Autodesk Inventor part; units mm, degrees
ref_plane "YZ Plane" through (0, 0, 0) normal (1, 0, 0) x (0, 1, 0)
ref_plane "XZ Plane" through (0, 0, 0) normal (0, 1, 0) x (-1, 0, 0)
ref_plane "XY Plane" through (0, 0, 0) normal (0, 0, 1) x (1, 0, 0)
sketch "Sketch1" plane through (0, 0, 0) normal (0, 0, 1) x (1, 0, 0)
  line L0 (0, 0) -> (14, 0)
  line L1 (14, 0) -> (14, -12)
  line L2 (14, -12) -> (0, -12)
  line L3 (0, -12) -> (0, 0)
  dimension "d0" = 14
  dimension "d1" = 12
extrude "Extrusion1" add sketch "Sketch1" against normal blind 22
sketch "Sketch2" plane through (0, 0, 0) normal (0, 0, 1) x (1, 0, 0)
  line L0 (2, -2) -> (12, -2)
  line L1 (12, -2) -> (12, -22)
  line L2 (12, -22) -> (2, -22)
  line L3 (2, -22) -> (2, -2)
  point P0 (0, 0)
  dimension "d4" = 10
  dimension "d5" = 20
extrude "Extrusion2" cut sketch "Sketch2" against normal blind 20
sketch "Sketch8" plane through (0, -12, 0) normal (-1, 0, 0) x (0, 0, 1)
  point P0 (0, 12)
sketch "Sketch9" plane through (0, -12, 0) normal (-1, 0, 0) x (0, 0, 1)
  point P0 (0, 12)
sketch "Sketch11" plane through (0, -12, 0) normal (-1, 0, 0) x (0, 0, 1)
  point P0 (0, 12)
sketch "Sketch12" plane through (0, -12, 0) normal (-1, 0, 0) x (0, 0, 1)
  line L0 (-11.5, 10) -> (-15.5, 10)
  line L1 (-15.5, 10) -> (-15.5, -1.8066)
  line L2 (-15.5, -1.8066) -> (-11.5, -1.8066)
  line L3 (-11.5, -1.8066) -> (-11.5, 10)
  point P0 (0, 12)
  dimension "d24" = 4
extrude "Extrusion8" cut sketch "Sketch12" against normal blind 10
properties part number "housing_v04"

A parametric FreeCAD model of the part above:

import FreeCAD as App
import Part
import Sketcher

V = App.Vector
Q = App.Units.Quantity


def add_polygon(sketch, points):
    """Adds a closed chain of lines whose ends are joined by coincident constraints."""
    first, n = sketch.GeometryCount, len(points)
    for a, b in zip(points, points[1:] + points[:1]):
        sketch.addGeometry(Part.LineSegment(App.Vector(*a, 0), App.Vector(*b, 0)), False)
    for i in range(n):
        sketch.addConstraint(Sketcher.Constraint("Coincident", first + i, 2, first + (i + 1) % n, 1))

doc = App.newDocument("Part")
body = doc.addObject("PartDesign::Body", "Body")

# Sketch on XY plane
sketch1 = body.newObject("Sketcher::SketchObject", "Sketch")
sketch1.AttachmentSupport = (doc.getObject("XY_Plane"), [""])
sketch1.MapMode = "FlatFace"
add_polygon(sketch1, [(14, 0), (0, 0), (0, -12), (14, -12)])  # lines 0-3
sketch1.addConstraint([
    Sketcher.Constraint("Horizontal", 0),
    Sketcher.Constraint("Vertical", 1),
    Sketcher.Constraint("Horizontal", 2),
    Sketcher.Constraint("Vertical", 3),
    Sketcher.Constraint("Coincident", 0, 2, -1, 1),
    Sketcher.Constraint("DistanceX", 0, 2, 0, 1, Q("14 mm")),
    Sketcher.Constraint("DistanceY", 1, 2, 1, 1, Q("12 mm")),
])
pad1 = body.newObject("PartDesign::Pad", "Pad")
pad1.Profile = sketch1
pad1.Length = 22
pad1.Reversed = True

# Sketch on XY plane
sketch2 = body.newObject("Sketcher::SketchObject", "Sketch001")
sketch2.AttachmentSupport = (doc.getObject("XY_Plane"), [""])
sketch2.MapMode = "FlatFace"
add_polygon(sketch2, [(12, -2), (2, -2), (2, -22), (12, -22)])  # lines 0-3
sketch2.addConstraint([
    Sketcher.Constraint("Horizontal", 0),
    Sketcher.Constraint("Vertical", 1),
    Sketcher.Constraint("Horizontal", 2),
    Sketcher.Constraint("Vertical", 3),
    Sketcher.Constraint("DistanceX", 0, 2, 0, 1, Q("10 mm")),
    Sketcher.Constraint("DistanceY", 1, 2, 1, 1, Q("20 mm")),
    Sketcher.Constraint("DistanceX", -1, 1, 0, 2, Q("2 mm")),
    Sketcher.Constraint("DistanceY", 0, 2, -1, 1, Q("2 mm")),
])
pocket1 = body.newObject("PartDesign::Pocket", "Pocket")
pocket1.Profile = sketch2
pocket1.Length = 20

# Sketch on YZ plane
sketch3 = body.newObject("Sketcher::SketchObject", "Sketch002")
sketch3.AttachmentSupport = (doc.getObject("YZ_Plane"), [""])
sketch3.MapMode = "FlatFace"
add_polygon(sketch3, [(-13.8, -11.5), (-2, -11.5), (-2, -15.5), (-13.8, -15.5)])  # lines 0-3
sketch3.addConstraint([
    Sketcher.Constraint("Horizontal", 0),
    Sketcher.Constraint("Vertical", 1),
    Sketcher.Constraint("Horizontal", 2),
    Sketcher.Constraint("Vertical", 3),
    Sketcher.Constraint("DistanceY", 1, 2, 1, 1, Q("4 mm")),
    Sketcher.Constraint("DistanceX", 0, 2, -1, 1, Q("2 mm")),
    Sketcher.Constraint("DistanceY", 0, 2, -1, 1, Q("11.5 mm")),
    Sketcher.Constraint("DistanceX", 0, 1, 0, 2, Q("11.8066 mm")),
])
pocket2 = body.newObject("PartDesign::Pocket", "Pocket001")
pocket2.Profile = sketch3
pocket2.Length = 10
pocket2.Reversed = True

doc.recompute()
